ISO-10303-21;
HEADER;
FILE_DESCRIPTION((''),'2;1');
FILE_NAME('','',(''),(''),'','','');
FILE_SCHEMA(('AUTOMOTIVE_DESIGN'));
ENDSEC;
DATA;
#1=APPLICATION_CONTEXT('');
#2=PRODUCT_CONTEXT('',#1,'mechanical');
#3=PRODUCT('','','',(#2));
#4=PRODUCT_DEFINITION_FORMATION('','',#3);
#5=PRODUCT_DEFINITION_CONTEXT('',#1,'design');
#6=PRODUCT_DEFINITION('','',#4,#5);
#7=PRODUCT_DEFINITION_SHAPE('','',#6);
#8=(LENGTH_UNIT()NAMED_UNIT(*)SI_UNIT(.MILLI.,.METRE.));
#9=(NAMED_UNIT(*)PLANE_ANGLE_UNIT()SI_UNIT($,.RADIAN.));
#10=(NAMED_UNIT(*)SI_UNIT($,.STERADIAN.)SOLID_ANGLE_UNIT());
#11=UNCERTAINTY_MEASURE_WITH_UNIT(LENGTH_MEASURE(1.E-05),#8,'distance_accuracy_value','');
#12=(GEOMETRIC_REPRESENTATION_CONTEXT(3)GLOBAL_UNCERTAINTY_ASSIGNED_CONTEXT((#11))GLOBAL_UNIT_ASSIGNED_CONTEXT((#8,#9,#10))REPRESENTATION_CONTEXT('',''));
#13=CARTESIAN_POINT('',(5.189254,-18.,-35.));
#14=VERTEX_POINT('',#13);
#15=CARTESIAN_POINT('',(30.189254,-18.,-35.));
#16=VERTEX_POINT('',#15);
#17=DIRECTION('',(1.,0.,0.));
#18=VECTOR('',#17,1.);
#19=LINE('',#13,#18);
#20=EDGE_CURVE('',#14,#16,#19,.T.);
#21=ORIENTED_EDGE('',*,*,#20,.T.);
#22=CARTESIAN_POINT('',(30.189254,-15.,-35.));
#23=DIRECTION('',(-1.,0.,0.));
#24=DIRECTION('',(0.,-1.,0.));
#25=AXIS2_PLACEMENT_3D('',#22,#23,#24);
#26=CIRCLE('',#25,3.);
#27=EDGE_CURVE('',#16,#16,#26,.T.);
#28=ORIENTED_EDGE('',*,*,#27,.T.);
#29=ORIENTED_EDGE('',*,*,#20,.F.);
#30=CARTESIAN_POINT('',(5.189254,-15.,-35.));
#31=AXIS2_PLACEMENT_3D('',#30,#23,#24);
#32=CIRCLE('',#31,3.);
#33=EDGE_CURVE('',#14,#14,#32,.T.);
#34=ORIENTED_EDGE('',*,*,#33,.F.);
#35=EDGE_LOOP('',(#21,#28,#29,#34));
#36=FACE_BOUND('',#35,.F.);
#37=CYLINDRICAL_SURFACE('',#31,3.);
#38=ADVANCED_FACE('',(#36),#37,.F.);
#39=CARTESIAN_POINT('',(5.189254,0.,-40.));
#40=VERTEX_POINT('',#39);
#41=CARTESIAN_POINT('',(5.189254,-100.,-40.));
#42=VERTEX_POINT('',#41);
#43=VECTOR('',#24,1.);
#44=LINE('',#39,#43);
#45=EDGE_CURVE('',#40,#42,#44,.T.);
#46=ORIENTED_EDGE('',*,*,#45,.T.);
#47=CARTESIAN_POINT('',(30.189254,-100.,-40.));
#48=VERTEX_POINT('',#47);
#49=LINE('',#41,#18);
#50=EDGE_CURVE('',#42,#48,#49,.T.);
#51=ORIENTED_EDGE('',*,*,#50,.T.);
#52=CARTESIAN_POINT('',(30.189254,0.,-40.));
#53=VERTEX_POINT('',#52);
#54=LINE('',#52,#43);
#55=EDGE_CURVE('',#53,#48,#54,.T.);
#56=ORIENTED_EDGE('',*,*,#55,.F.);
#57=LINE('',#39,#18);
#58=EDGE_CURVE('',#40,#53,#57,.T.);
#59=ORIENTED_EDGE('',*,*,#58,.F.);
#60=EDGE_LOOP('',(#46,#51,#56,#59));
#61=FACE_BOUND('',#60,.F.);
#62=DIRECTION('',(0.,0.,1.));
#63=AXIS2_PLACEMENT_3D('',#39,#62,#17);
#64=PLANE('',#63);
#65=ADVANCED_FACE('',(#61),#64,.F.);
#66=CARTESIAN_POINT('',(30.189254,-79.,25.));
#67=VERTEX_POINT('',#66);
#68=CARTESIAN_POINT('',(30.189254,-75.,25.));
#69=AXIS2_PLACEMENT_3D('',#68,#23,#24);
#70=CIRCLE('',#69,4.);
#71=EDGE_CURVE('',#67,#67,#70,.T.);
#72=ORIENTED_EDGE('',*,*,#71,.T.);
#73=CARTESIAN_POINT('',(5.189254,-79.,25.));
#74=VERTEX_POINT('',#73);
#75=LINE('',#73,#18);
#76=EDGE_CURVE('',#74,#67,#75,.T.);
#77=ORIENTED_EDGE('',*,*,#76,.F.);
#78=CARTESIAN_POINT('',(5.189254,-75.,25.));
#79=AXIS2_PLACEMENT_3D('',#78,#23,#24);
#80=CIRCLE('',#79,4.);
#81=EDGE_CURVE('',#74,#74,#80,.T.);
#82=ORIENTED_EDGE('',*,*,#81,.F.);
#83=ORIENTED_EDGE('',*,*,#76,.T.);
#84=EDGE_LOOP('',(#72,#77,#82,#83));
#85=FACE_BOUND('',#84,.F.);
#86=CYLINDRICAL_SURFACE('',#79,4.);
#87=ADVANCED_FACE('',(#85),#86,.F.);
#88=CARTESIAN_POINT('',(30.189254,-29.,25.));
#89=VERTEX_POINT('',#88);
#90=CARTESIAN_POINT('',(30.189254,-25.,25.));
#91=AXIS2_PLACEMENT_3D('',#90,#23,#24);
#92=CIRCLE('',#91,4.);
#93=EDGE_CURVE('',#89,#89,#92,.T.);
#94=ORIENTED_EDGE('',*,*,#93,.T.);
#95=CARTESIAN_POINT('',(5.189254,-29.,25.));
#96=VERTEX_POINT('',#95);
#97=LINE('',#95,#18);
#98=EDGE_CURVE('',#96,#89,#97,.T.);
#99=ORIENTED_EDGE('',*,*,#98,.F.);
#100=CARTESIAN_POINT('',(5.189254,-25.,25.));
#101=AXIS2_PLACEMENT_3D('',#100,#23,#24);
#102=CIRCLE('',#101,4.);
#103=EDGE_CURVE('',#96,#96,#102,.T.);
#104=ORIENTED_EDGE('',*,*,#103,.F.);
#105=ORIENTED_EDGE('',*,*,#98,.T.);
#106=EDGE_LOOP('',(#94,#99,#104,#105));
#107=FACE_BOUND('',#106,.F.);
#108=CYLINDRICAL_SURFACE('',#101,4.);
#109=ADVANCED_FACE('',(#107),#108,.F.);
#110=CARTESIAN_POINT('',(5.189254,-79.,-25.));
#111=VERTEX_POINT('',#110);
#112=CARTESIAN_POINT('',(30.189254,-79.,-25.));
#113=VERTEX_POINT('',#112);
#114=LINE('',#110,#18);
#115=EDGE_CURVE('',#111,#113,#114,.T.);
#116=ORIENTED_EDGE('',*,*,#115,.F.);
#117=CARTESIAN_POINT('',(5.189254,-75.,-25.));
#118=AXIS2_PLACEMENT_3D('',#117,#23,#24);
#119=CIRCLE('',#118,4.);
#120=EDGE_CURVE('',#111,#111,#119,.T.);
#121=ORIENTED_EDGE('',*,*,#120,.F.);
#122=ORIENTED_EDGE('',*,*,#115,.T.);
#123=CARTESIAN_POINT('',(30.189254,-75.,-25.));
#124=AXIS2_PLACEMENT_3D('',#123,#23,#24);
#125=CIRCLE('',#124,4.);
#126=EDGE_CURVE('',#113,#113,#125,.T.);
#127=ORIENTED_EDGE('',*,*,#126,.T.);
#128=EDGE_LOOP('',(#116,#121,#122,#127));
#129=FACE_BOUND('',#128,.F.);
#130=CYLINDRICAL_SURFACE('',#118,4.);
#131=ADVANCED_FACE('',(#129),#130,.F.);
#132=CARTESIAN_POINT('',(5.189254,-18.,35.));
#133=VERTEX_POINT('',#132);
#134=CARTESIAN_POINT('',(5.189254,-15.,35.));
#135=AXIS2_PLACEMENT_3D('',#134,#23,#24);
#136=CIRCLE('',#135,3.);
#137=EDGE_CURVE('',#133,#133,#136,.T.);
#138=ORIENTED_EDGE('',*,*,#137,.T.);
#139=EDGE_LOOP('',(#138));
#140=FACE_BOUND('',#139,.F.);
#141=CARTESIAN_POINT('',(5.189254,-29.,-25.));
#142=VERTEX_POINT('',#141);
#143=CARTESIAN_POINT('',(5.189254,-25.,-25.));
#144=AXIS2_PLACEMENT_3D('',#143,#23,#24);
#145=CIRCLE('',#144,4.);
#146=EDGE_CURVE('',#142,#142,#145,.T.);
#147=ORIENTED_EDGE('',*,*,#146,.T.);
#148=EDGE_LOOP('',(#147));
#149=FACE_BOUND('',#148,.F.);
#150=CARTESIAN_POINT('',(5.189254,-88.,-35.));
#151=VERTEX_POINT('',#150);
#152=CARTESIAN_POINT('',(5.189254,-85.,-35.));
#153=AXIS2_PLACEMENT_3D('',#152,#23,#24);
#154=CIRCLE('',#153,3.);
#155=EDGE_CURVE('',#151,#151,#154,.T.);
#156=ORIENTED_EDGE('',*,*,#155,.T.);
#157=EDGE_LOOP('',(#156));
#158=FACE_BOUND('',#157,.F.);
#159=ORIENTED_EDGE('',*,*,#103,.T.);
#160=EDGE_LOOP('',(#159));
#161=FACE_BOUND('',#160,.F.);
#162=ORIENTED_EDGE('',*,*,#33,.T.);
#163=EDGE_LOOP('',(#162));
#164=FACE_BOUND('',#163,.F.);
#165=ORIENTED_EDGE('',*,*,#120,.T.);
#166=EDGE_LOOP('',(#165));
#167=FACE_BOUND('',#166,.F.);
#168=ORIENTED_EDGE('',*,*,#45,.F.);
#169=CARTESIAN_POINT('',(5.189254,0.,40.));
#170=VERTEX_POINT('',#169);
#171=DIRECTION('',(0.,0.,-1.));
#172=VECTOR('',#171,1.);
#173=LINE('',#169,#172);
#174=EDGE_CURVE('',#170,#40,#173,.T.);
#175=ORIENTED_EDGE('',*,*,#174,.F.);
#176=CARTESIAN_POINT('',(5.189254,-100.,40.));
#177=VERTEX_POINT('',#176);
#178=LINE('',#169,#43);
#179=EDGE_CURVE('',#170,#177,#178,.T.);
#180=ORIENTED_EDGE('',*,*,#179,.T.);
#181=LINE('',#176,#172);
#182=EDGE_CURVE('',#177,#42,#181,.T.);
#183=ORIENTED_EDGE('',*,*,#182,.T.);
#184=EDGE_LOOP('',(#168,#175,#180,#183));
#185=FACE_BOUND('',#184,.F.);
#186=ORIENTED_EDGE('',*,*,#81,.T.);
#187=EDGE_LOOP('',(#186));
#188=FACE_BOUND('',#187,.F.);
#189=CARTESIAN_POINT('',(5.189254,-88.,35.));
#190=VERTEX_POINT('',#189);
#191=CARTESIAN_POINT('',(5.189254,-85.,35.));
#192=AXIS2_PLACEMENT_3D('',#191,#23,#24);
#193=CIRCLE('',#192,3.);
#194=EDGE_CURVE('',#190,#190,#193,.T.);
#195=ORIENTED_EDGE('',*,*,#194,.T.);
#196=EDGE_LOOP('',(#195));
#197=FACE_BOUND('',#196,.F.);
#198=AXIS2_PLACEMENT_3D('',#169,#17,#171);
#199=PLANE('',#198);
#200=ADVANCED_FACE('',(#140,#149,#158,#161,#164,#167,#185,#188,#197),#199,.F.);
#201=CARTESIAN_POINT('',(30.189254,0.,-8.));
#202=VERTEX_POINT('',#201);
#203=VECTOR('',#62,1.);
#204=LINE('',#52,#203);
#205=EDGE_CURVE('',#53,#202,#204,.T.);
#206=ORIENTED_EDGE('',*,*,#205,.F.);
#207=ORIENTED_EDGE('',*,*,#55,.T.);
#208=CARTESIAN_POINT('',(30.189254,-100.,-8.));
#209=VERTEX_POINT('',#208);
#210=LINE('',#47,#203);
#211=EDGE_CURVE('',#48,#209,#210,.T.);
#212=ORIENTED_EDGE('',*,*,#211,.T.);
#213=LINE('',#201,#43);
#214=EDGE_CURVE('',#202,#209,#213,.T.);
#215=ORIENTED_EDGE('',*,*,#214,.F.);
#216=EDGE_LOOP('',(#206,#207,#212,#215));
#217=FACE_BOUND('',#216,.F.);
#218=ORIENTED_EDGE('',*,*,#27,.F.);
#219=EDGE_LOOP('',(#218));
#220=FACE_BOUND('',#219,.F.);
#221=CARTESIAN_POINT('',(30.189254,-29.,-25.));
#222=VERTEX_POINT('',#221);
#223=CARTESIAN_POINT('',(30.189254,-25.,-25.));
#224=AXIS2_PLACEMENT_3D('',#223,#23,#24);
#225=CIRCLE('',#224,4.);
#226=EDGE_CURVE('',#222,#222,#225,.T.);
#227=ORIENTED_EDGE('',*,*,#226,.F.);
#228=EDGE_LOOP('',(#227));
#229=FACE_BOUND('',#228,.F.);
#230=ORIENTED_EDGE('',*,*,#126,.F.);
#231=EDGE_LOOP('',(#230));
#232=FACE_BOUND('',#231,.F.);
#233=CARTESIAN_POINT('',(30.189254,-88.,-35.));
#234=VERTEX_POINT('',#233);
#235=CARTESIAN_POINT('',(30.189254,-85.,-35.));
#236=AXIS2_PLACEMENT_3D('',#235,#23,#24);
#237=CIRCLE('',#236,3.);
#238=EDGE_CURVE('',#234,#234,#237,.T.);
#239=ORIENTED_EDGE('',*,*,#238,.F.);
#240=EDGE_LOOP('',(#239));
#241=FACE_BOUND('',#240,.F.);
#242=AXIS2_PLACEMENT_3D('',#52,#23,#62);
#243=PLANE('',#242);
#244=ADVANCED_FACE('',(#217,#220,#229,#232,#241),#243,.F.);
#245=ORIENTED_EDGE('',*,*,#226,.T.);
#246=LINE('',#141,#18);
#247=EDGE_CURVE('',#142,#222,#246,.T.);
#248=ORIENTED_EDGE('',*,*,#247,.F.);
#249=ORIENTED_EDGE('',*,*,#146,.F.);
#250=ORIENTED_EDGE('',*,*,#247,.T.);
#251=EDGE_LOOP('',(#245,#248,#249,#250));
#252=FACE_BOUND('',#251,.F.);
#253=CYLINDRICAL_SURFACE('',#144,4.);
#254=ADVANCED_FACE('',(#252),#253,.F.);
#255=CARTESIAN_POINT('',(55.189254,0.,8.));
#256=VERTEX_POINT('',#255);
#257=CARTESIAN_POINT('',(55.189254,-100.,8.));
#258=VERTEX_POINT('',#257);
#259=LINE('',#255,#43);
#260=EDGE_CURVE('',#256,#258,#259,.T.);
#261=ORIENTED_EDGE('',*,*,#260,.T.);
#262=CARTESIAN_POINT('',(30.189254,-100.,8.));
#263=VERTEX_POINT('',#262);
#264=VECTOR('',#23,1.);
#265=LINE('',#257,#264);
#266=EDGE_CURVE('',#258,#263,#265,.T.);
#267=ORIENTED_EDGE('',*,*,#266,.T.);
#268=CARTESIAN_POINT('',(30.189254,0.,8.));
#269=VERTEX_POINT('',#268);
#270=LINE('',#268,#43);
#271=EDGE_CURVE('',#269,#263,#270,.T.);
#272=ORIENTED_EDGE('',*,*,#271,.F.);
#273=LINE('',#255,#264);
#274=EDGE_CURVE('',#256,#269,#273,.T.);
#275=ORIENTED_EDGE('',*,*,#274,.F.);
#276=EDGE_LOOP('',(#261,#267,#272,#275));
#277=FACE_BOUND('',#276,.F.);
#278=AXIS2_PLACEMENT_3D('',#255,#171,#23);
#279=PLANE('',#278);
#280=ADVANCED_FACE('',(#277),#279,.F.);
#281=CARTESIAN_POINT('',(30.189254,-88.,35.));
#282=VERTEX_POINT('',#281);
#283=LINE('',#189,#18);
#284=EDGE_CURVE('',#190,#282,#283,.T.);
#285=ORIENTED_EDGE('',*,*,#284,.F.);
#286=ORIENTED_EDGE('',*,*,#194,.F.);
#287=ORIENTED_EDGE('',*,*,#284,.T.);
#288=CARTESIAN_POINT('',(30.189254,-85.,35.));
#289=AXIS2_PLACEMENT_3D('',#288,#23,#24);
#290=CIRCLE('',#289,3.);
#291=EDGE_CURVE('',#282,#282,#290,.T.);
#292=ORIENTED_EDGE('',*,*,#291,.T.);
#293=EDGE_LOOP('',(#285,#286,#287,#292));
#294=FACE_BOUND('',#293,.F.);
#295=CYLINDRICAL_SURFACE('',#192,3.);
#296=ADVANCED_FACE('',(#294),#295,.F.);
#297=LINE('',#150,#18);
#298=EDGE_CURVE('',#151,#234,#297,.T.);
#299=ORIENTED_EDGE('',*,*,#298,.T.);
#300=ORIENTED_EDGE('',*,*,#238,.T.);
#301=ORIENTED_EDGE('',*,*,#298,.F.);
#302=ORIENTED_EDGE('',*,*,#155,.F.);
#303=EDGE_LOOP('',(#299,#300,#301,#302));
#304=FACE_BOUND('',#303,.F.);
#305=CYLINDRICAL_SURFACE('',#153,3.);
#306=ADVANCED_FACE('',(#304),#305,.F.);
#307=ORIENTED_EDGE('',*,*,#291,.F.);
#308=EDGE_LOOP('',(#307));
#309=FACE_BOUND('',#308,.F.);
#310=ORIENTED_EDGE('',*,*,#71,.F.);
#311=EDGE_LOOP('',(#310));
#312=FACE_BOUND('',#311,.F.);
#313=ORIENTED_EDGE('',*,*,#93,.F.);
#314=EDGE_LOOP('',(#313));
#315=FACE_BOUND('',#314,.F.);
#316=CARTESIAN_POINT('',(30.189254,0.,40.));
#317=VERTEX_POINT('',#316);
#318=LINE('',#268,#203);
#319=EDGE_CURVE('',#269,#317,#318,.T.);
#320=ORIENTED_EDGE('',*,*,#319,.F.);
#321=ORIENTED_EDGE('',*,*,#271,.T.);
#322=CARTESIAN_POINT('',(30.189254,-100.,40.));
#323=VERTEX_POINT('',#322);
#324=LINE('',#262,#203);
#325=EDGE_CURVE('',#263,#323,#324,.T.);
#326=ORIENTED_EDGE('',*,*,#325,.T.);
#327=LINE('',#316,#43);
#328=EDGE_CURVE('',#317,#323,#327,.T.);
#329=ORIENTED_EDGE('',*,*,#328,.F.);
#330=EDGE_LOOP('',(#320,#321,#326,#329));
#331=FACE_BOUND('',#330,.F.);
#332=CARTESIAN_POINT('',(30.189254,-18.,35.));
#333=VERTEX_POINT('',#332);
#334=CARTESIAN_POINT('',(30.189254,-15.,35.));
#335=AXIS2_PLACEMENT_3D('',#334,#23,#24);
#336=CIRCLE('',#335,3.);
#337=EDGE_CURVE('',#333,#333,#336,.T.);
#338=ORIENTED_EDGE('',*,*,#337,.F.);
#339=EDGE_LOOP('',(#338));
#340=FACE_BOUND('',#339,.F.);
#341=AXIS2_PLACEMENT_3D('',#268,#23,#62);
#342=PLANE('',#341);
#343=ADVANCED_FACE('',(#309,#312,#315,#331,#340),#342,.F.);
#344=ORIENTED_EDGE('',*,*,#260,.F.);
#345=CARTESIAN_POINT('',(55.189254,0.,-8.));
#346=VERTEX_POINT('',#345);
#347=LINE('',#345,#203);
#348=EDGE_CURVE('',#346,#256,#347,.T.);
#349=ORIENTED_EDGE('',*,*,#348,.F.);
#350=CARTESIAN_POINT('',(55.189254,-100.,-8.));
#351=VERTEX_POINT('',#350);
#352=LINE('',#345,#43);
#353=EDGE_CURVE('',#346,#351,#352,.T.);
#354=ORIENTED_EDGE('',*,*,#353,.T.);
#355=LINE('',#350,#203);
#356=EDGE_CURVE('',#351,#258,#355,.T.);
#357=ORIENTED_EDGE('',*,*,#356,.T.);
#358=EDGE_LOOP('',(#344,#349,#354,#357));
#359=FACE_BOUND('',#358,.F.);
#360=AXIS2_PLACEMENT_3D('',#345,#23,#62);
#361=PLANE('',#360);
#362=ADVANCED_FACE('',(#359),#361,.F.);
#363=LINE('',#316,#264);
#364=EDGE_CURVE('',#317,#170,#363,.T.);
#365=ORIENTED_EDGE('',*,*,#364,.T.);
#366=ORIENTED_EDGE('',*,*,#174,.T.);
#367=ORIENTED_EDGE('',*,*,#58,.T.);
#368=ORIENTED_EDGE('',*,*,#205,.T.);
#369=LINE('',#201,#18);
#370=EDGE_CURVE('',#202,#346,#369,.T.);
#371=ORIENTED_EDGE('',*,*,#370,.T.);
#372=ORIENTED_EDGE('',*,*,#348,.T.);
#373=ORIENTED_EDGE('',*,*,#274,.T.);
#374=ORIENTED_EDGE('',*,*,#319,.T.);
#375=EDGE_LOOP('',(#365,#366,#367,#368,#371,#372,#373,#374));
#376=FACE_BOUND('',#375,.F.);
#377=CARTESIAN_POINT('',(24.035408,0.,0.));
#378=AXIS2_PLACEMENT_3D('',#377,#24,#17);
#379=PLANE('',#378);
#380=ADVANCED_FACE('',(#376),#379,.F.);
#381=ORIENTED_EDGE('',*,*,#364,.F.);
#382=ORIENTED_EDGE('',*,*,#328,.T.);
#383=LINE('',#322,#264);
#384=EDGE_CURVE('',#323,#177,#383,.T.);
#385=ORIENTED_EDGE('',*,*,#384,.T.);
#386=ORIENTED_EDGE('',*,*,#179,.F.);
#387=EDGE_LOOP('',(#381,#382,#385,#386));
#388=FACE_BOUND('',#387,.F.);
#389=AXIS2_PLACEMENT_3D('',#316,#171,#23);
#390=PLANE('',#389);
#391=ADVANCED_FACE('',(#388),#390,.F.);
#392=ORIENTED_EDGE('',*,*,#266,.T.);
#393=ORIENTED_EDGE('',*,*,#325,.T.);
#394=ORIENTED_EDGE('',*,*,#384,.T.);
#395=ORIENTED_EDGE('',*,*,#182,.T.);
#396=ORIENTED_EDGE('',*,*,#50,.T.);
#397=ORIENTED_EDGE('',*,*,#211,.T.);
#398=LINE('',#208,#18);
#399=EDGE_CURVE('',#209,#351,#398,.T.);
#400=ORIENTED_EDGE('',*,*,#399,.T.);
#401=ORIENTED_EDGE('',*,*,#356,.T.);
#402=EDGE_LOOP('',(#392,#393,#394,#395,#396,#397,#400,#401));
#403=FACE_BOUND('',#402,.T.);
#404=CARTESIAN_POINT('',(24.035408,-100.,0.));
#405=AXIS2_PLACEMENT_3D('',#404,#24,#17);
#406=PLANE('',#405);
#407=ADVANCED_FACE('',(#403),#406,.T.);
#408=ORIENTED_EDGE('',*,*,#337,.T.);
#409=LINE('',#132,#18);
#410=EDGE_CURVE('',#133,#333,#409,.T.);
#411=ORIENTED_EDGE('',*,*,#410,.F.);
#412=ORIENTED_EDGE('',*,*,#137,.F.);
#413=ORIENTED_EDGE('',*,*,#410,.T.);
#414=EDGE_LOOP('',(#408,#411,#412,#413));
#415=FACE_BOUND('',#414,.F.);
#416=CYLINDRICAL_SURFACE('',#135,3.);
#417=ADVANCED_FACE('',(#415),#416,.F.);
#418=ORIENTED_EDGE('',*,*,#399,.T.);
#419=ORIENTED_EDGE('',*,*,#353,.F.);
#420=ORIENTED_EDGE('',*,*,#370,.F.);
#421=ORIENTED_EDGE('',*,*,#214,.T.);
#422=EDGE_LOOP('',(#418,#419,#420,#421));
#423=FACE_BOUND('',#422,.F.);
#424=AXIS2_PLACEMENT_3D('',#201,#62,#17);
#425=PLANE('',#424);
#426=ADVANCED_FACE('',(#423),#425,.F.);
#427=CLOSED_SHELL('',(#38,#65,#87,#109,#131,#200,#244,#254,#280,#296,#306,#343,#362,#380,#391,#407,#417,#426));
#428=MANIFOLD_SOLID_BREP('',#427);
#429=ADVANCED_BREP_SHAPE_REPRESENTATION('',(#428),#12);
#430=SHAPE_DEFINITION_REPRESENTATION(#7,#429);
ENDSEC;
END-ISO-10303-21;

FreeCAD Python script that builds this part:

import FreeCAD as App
import Part
import Sketcher

V = App.Vector
Q = App.Units.Quantity


def add_polygon(sketch, points):
    """Adds a closed chain of lines whose ends are joined by coincident constraints."""
    first, n = sketch.GeometryCount, len(points)
    for a, b in zip(points, points[1:] + points[:1]):
        sketch.addGeometry(Part.LineSegment(App.Vector(*a, 0), App.Vector(*b, 0)), False)
    for i in range(n):
        sketch.addConstraint(Sketcher.Constraint("Coincident", first + i, 2, first + (i + 1) % n, 1))

doc = App.newDocument("Part")
body = doc.addObject("PartDesign::Body", "Body")

sketch1 = body.newObject("Sketcher::SketchObject", "Sketch")
sketch1.AttachmentSupport = (doc.getObject("XZ_Plane"), [""])
sketch1.MapMode = "FlatFace"
add_polygon(sketch1, [(5, 40), (5, -40), (30, -40), (30, -8), (55, -8), (55, 8), (30, 8), (30, 40)])
sketch1.addConstraint([
    Sketcher.Constraint("Vertical", 0),
    Sketcher.Constraint("Horizontal", 1),
    Sketcher.Constraint("Vertical", 2),
    Sketcher.Constraint("Horizontal", 3),
    Sketcher.Constraint("Vertical", 4),
    Sketcher.Constraint("Horizontal", 5),
    Sketcher.Constraint("Vertical", 6),
    Sketcher.Constraint("Horizontal", 7),
    Sketcher.Constraint("Symmetric", 2, 2, 5, 2, -1),
    Sketcher.Constraint("Equal", 1, 3),
    Sketcher.Constraint("Equal", 2, 6),
    Sketcher.Constraint("DistanceX", 1, 1, 1, 2, Q("25 mm")),
    Sketcher.Constraint("DistanceY", 0, 2, 0, 1, Q("80 mm")),
    Sketcher.Constraint("DistanceY", 2, 1, 2, 2, Q("32 mm")),
    Sketcher.Constraint("DistanceX", -1, 1, 0, 2, Q("5.189254 mm")),
])
pad1 = body.newObject("PartDesign::Pad", "Pad")
pad1.Profile = sketch1
pad1.Length = 100

sketch2 = body.newObject("Sketcher::SketchObject", "Sketch001")
sketch2.AttachmentSupport = (doc.getObject("YZ_Plane"), [""])
sketch2.MapMode = "FlatFace"
sketch2.AttachmentOffset = App.Placement(V(0, 0, 5.189254), App.Rotation())
sketch2.addGeometry([
    Part.Circle(V(-25, 25, 0), V(0, 0, 1), 4),
    Part.Circle(V(-75, 25, 0), V(0, 0, 1), 4),
    Part.Circle(V(-25, -25, 0), V(0, 0, 1), 4),
    Part.Circle(V(-75, -25, 0), V(0, 0, 1), 4),
    Part.Circle(V(-15, 35, 0), V(0, 0, 1), 3),
    Part.Circle(V(-85, 35, 0), V(0, 0, 1), 3),
    Part.Circle(V(-15, -35, 0), V(0, 0, 1), 3),
    Part.Circle(V(-85, -35, 0), V(0, 0, 1), 3),
], False)
sketch2.addConstraint([
    Sketcher.Constraint("Equal", 0, 1),
    Sketcher.Constraint("Equal", 1, 2),
    Sketcher.Constraint("Equal", 2, 3),
    Sketcher.Constraint("Equal", 4, 5),
    Sketcher.Constraint("Equal", 5, 6),
    Sketcher.Constraint("Equal", 6, 7),
    Sketcher.Constraint("Symmetric", 0, 3, 2, 3, -1),
    Sketcher.Constraint("Symmetric", 1, 3, 3, 3, -1),
    Sketcher.Constraint("Symmetric", 4, 3, 6, 3, -1),
    Sketcher.Constraint("Symmetric", 5, 3, 7, 3, -1),
    Sketcher.Constraint("Horizontal", 0, 3, 1, 3),
    Sketcher.Constraint("Horizontal", 4, 3, 5, 3),
    Sketcher.Constraint("Diameter", 0, Q("8 mm")),
    Sketcher.Constraint("Diameter", 4, Q("6 mm")),
    Sketcher.Constraint("DistanceX", 0, 3, -1, 1, Q("25 mm")),
    Sketcher.Constraint("DistanceY", -1, 1, 0, 3, Q("25 mm")),
    Sketcher.Constraint("DistanceX", 1, 3, -1, 1, Q("75 mm")),
    Sketcher.Constraint("DistanceX", 4, 3, -1, 1, Q("15 mm")),
    Sketcher.Constraint("DistanceY", -1, 1, 4, 3, Q("35 mm")),
    Sketcher.Constraint("DistanceX", 5, 3, -1, 1, Q("85 mm")),
])
pocket1 = body.newObject("PartDesign::Pocket", "Pocket")
pocket1.Profile = sketch2
pocket1.Length = 100
pocket1.Reversed = True

doc.recompute()
